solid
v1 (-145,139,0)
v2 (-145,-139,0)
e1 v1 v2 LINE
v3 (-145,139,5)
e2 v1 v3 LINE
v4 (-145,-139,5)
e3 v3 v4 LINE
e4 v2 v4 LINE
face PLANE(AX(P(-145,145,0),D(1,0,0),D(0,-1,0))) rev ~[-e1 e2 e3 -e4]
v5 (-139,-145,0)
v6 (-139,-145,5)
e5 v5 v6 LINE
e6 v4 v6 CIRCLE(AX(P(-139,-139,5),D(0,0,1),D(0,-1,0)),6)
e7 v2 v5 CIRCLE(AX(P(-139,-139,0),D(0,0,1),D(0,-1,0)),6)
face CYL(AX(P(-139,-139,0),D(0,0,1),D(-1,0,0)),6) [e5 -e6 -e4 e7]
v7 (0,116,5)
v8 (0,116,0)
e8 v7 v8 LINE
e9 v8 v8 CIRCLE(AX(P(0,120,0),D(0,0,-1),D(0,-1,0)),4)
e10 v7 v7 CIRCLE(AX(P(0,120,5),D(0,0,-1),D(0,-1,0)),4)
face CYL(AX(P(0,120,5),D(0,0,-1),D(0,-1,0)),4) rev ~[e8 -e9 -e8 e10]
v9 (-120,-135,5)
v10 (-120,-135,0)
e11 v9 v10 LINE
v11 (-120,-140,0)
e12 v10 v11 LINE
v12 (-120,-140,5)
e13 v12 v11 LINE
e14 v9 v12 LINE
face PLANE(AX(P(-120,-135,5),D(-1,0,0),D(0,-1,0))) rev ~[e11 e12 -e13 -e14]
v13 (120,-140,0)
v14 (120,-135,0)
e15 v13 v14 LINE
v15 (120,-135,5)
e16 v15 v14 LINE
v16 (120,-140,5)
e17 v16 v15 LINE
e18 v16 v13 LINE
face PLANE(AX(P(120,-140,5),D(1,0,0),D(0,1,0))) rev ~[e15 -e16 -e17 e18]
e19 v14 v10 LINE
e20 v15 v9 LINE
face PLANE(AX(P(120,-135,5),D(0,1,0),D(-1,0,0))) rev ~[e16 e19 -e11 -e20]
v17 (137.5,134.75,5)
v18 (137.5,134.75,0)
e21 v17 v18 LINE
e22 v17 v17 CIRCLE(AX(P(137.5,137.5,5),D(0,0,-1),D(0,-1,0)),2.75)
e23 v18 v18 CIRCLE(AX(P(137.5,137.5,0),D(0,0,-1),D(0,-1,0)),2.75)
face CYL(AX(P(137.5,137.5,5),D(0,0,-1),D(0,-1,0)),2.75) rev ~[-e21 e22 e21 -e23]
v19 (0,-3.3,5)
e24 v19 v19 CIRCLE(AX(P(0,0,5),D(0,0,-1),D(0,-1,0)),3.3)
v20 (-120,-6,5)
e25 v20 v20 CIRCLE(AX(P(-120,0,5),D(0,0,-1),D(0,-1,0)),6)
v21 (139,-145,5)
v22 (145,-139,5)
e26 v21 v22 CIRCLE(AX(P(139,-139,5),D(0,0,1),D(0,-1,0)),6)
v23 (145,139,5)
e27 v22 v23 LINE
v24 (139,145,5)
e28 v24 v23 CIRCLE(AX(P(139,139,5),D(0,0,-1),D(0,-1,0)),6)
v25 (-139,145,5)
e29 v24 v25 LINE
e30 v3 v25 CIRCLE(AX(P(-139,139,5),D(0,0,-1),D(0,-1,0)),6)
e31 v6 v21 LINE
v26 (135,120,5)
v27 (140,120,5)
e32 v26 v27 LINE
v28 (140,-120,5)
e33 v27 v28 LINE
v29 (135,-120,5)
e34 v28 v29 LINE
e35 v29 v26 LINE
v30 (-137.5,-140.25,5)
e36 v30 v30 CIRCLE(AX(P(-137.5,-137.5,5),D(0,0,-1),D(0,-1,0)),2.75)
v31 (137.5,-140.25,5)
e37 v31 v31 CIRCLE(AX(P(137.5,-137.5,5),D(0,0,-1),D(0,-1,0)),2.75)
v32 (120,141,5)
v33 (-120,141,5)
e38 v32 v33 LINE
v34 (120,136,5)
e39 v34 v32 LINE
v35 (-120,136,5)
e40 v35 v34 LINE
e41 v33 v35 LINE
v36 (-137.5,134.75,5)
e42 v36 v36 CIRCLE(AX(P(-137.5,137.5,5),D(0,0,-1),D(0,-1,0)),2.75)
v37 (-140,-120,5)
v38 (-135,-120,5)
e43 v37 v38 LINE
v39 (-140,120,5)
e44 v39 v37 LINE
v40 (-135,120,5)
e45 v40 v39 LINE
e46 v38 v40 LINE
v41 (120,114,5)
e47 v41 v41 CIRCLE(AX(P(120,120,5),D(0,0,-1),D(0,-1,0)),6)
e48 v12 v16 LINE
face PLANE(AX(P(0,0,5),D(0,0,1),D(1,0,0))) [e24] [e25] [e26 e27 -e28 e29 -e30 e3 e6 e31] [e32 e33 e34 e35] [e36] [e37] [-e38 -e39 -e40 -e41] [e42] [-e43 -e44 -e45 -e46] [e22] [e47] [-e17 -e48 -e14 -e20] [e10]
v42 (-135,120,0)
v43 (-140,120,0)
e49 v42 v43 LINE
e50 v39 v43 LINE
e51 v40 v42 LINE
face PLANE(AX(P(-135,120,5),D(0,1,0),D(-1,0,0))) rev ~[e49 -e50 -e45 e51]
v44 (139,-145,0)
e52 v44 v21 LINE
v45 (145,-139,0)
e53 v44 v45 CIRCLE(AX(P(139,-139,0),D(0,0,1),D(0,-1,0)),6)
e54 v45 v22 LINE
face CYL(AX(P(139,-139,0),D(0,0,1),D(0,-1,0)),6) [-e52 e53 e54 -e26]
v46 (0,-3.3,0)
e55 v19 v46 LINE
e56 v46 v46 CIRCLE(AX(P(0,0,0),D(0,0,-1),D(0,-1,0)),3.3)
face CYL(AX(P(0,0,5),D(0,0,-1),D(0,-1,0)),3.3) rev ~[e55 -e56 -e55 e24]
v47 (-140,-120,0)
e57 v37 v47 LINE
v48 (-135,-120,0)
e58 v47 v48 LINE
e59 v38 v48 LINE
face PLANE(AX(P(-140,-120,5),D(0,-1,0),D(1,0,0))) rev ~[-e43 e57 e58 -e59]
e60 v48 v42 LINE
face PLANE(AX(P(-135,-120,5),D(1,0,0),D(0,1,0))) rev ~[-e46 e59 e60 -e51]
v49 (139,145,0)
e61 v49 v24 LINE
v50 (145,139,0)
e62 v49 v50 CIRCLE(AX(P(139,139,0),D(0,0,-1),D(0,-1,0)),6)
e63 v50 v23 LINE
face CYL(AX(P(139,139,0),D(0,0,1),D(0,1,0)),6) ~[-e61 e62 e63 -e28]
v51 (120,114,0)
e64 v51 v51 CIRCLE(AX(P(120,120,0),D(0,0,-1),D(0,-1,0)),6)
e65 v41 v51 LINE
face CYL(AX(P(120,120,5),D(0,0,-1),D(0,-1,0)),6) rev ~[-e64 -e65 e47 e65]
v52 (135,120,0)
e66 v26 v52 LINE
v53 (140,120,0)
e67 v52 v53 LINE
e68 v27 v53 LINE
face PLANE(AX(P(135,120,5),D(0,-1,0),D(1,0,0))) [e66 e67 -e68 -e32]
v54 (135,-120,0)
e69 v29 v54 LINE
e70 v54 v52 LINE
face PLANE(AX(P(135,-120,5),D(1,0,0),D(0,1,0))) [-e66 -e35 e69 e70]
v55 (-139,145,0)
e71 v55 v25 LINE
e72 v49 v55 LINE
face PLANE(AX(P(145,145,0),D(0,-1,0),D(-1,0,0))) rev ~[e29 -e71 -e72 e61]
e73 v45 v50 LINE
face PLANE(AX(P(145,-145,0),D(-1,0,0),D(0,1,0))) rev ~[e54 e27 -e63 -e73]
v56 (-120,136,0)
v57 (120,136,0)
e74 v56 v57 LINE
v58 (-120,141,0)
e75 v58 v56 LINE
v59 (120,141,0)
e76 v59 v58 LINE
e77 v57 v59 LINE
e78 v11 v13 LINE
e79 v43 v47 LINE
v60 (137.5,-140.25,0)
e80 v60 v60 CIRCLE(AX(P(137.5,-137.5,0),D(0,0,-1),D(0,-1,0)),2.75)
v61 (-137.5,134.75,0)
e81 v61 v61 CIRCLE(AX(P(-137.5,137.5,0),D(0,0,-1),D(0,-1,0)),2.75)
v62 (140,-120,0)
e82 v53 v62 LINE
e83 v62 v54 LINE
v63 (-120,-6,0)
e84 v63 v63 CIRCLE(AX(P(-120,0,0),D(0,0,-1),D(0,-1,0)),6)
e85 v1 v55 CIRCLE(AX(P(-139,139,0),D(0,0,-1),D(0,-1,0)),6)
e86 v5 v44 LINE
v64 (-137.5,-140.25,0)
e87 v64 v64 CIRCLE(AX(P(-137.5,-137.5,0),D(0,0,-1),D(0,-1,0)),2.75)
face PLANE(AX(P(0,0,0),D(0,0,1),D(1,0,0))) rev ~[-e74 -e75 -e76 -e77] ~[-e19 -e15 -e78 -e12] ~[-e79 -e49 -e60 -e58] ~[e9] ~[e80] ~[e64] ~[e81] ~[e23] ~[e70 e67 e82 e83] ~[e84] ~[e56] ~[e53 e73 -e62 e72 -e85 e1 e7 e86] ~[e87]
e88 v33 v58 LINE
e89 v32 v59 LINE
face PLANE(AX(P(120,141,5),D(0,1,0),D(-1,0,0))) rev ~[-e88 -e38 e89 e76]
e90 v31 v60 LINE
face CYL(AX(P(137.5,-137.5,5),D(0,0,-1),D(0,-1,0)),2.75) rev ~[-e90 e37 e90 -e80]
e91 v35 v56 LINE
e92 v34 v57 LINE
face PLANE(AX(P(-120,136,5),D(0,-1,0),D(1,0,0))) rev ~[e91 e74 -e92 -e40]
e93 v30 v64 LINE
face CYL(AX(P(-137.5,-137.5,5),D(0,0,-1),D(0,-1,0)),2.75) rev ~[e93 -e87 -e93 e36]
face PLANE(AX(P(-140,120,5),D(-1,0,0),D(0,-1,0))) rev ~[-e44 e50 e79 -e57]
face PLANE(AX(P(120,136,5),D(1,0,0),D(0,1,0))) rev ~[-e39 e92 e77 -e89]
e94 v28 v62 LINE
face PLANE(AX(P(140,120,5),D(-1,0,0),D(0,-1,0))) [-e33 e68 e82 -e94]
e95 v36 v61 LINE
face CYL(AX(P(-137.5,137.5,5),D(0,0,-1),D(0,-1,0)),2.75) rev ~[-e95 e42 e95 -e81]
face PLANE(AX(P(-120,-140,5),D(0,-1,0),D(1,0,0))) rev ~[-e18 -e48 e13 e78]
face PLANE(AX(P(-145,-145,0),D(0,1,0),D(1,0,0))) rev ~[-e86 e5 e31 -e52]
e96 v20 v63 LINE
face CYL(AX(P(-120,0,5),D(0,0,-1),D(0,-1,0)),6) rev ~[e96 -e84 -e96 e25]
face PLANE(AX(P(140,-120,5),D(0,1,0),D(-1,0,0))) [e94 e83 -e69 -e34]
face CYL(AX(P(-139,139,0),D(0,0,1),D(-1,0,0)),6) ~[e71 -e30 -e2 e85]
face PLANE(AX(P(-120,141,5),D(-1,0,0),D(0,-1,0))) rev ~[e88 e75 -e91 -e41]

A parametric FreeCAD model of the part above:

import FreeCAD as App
import Part
import Sketcher

V = App.Vector
Q = App.Units.Quantity


def edges_at(feature, points):
    """Names of the edges that pass closest to the given points."""
    edges = feature.Shape.Edges
    near = lambda p: min(range(len(edges)), key=lambda i: edges[i].distToShape(Part.Vertex(*p))[0])
    return sorted({f"Edge{near(p) + 1}" for p in points})


def add_polygon(sketch, points):
    """Adds a closed chain of lines whose ends are joined by coincident constraints."""
    first, n = sketch.GeometryCount, len(points)
    for a, b in zip(points, points[1:] + points[:1]):
        sketch.addGeometry(Part.LineSegment(App.Vector(*a, 0), App.Vector(*b, 0)), False)
    for i in range(n):
        sketch.addConstraint(Sketcher.Constraint("Coincident", first + i, 2, first + (i + 1) % n, 1))

doc = App.newDocument("Part")
body = doc.addObject("PartDesign::Body", "Body")

# Sketch on XY plane
sketch1 = doc.addObject("Sketcher::SketchObject", "Sketch")
body.addObject(sketch1)
sketch1.AttachmentSupport = (doc.XY_Plane, [""])
sketch1.MapMode = "FlatFace"
add_polygon(sketch1, [(-145, 145), (-145, -145), (145, -145), (145, 145)])  # lines 0-3
sketch1.addConstraint([
    Sketcher.Constraint("Vertical", 0),
    Sketcher.Constraint("Horizontal", 1),
    Sketcher.Constraint("Vertical", 2),
    Sketcher.Constraint("Horizontal", 3),
    Sketcher.Constraint("Symmetric", 0, 2, 2, 2, -1, 1),
    Sketcher.Constraint("Equal", 3, 0),
    Sketcher.Constraint("DistanceX", 1, 1, 1, 2, Q("290 mm")),
])
pad1 = doc.addObject("PartDesign::Pad", "Pad")
body.addObject(pad1)
pad1.Profile = sketch1
pad1.Length = 5

# Sketch on XY plane
sketch2 = doc.addObject("Sketcher::SketchObject", "Sketch001")
body.addObject(sketch2)
sketch2.AttachmentSupport = (doc.XY_Plane, [""])
sketch2.MapMode = "FlatFace"
sketch2.AttachmentOffset = App.Placement(V(0, 0, 5), App.Rotation())
sketch2.addGeometry(Part.Circle(V(0, 0, 0), V(0, 0, 1), 3.3), False)
sketch2.addConstraint([
    Sketcher.Constraint("Coincident", 0, 3, -1, 1),
    Sketcher.Constraint("Diameter", 0, Q("6.6 mm")),
])
doc.recompute()
hole = doc.addObject("PartDesign::Hole", "Hole")
body.addObject(hole)
hole.Profile = sketch2
hole.ThreadType = "None"
hole.Diameter = 6.6
hole.DepthType = "Dimension"
hole.Depth = 8
hole.DrillPoint = "Angled"
hole.DrillPointAngle = 118

# Sketch on XY plane
sketch3 = doc.addObject("Sketcher::SketchObject", "Sketch002")
body.addObject(sketch3)
sketch3.AttachmentSupport = (doc.XY_Plane, [""])
sketch3.MapMode = "FlatFace"
sketch3.AttachmentOffset = App.Placement(V(0, 0, 5), App.Rotation())
sketch3.addGeometry([
    Part.Circle(V(-137.5, 137.5, 0), V(0, 0, 1), 2.8),
    Part.Circle(V(137.5, 137.5, 0), V(0, 0, 1), 2.8),
    Part.Circle(V(137.5, -137.5, 0), V(0, 0, 1), 2.8),
    Part.Circle(V(-137.5, -137.5, 0), V(0, 0, 1), 2.8),
], False)
sketch3.addConstraint([
    Sketcher.Constraint("Equal", 0, 1),
    Sketcher.Constraint("Equal", 1, 2),
    Sketcher.Constraint("Equal", 2, 3),
    Sketcher.Constraint("Symmetric", 0, 3, 2, 3, -1, 1),
    Sketcher.Constraint("Symmetric", 1, 3, 3, 3, -1, 1),
    Sketcher.Constraint("Symmetric", 0, 3, 1, 3, -2),
    Sketcher.Constraint("Diameter", 0, Q("5.5 mm")),
    Sketcher.Constraint("DistanceX", 0, 3, 1, 3, Q("275 mm")),
    Sketcher.Constraint("DistanceY", 2, 3, 1, 3, Q("275 mm")),
])
doc.recompute()
hole2 = doc.addObject("PartDesign::Hole", "Hole001")
body.addObject(hole2)
hole2.Profile = sketch3
hole2.ThreadType = "None"
hole2.Diameter = 5.5
hole2.DepthType = "Dimension"
hole2.Depth = 8
hole2.DrillPoint = "Angled"
hole2.DrillPointAngle = 118
doc.recompute()

fillet = doc.addObject("PartDesign::Fillet", "Fillet")
body.addObject(fillet)
fillet.Base = (hole2, edges_at(hole2, [
    (-145, -145, 2.5),
    (145, -145, 2.5),
    (145, 145, 2.5),
    (-145, 145, 2.5),
]))
fillet.Radius = 6

# Sketch on XY plane
sketch4 = doc.addObject("Sketcher::SketchObject", "Sketch003")
body.addObject(sketch4)
sketch4.AttachmentSupport = (doc.XY_Plane, [""])
sketch4.MapMode = "FlatFace"
sketch4.AttachmentOffset = App.Placement(V(0, 0, 5), App.Rotation())
add_polygon(sketch4, [(-120, -135), (-120, -140), (120, -140), (120, -135)])  # lines 0-3
add_polygon(sketch4, [(135, -120), (140, -120), (140, 120), (135, 120)])  # lines 4-7
add_polygon(sketch4, [(120, 136), (120, 141), (-120, 141), (-120, 136)])  # lines 8-11
add_polygon(sketch4, [(-135, -120), (-135, 120), (-140, 120), (-140, -120)])  # lines 12-15
sketch4.addConstraint([
    Sketcher.Constraint("Vertical", 0),
    Sketcher.Constraint("Horizontal", 1),
    Sketcher.Constraint("Vertical", 2),
    Sketcher.Constraint("Horizontal", 3),
    Sketcher.Constraint("Horizontal", 4),
    Sketcher.Constraint("Vertical", 5),
    Sketcher.Constraint("Horizontal", 6),
    Sketcher.Constraint("Vertical", 7),
    Sketcher.Constraint("Vertical", 8),
    Sketcher.Constraint("Horizontal", 9),
    Sketcher.Constraint("Vertical", 10),
    Sketcher.Constraint("Horizontal", 11),
    Sketcher.Constraint("Vertical", 12),
    Sketcher.Constraint("Horizontal", 13),
    Sketcher.Constraint("Vertical", 14),
    Sketcher.Constraint("Horizontal", 15),
    Sketcher.Constraint("Symmetric", 7, 2, 12, 2, -1, 1),
    Sketcher.Constraint("Symmetric", 5, 2, 14, 2, -1, 1),
    Sketcher.Constraint("Horizontal", 6, 2, 12, 2),
    Sketcher.Constraint("Vertical", 2, 2, 8, 2),
    Sketcher.Constraint("Vertical", 3, 2, 9, 2),
    Sketcher.Constraint("Equal", 15, 0),
    Sketcher.Constraint("Equal", 11, 5),
    Sketcher.Constraint("Equal", 2, 8),
    Sketcher.Constraint("DistanceX", 1, 1, 1, 2, Q("240 mm")),
    Sketcher.Constraint("DistanceX", 4, 1, 4, 2, Q("5 mm")),
    Sketcher.Constraint("DistanceX", 0, 2, -1, 1, Q("120 mm")),
    Sketcher.Constraint("DistanceY", 0, 2, -1, 1, Q("140 mm")),
    Sketcher.Constraint("DistanceX", -1, 1, 4, 2, Q("140 mm")),
    Sketcher.Constraint("DistanceY", -1, 1, 8, 2, Q("141 mm")),
])
pocket1 = doc.addObject("PartDesign::Pocket", "Pocket")
body.addObject(pocket1)
pocket1.Profile = sketch4
pocket1.Type = "ThroughAll"

# Sketch on XY plane
sketch5 = doc.addObject("Sketcher::SketchObject", "Sketch004")
body.addObject(sketch5)
sketch5.AttachmentSupport = (doc.XY_Plane, [""])
sketch5.MapMode = "FlatFace"
sketch5.AttachmentOffset = App.Placement(V(0, 0, 5), App.Rotation())
sketch5.addGeometry([
    Part.Circle(V(-120, 0, 0), V(0, 0, 1), 6),
    Part.Circle(V(120, 120, 0), V(0, 0, 1), 6),
], False)
sketch5.addConstraint([
    Sketcher.Constraint("Equal", 0, 1),
    Sketcher.Constraint("PointOnObject", 0, 3, -1),
    Sketcher.Constraint("Diameter", 0, Q("12 mm")),
    Sketcher.Constraint("DistanceX", 0, 3, -1, 1, Q("120 mm")),
    Sketcher.Constraint("DistanceX", -1, 1, 1, 3, Q("120 mm")),
    Sketcher.Constraint("DistanceY", -1, 1, 1, 3, Q("120 mm")),
])
doc.recompute()
hole3 = doc.addObject("PartDesign::Hole", "Hole002")
body.addObject(hole3)
hole3.Profile = sketch5
hole3.ThreadType = "None"
hole3.Diameter = 12
hole3.DepthType = "Dimension"
hole3.Depth = 8
hole3.DrillPoint = "Angled"
hole3.DrillPointAngle = 118

# Sketch on XY plane
sketch6 = doc.addObject("Sketcher::SketchObject", "Sketch005")
body.addObject(sketch6)
sketch6.AttachmentSupport = (doc.XY_Plane, [""])
sketch6.MapMode = "FlatFace"
sketch6.AttachmentOffset = App.Placement(V(0, 0, 5), App.Rotation())
sketch6.addGeometry(Part.Circle(V(0, 120, 0), V(0, 0, 1), 4), False)
sketch6.addConstraint([
    Sketcher.Constraint("PointOnObject", 0, 3, -2),
    Sketcher.Constraint("Diameter", 0, Q("8 mm")),
    Sketcher.Constraint("DistanceY", -1, 1, 0, 3, Q("120 mm")),
])
doc.recompute()
hole4 = doc.addObject("PartDesign::Hole", "Hole003")
body.addObject(hole4)
hole4.Profile = sketch6
hole4.ThreadType = "None"
hole4.Diameter = 8
hole4.DepthType = "Dimension"
hole4.Depth = 8
hole4.DrillPoint = "Angled"
hole4.DrillPointAngle = 118

doc.recompute()
